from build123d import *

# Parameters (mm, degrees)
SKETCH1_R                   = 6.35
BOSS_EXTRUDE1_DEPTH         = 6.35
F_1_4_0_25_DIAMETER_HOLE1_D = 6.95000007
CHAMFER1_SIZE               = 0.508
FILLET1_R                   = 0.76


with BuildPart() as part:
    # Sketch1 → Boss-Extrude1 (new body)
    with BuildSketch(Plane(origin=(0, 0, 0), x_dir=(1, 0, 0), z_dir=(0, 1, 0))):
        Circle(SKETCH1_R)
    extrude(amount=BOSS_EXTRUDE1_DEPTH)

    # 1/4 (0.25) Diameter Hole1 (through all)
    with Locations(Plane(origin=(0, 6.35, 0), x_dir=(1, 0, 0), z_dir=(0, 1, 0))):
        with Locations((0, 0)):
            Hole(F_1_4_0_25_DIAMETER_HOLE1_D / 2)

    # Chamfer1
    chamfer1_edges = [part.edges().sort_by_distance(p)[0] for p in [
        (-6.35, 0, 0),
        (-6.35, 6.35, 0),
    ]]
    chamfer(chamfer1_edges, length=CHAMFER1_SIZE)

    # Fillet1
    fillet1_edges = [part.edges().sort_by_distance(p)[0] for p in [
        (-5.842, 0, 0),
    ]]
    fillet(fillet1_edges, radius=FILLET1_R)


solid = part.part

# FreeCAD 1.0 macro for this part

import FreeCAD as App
import Part
import Sketcher
Q = App.Units.Quantity


def edges_at(feature, points):
    """Names of the edges that pass closest to the given points."""
    edges = feature.Shape.Edges
    near = lambda p: min(range(len(edges)), key=lambda i: edges[i].distToShape(Part.Vertex(*p))[0])
    return sorted({f"Edge{near(p) + 1}" for p in points})

doc = App.newDocument("Part")
body = doc.addObject("PartDesign::Body", "Body")

# Sketch on XZ plane
sketch1 = body.newObject("Sketcher::SketchObject", "Sketch")
sketch1.AttachmentSupport = (doc.getObject("XZ_Plane"), [""])
sketch1.MapMode = "FlatFace"
sketch1.addGeometry(Part.Circle(App.Vector(0, 0, 0), App.Vector(0, 0, 1), 6.35), False)
sketch1.addConstraint(Sketcher.Constraint("Coincident", 0, 3, -1, 1))
sketch1.addConstraint(Sketcher.Constraint("Diameter", 0, Q("0.5 in")))
pad1 = body.newObject("PartDesign::Pad", "Pad")
pad1.Profile = sketch1
pad1.Length = Q("0.25 in")
pad1.Reversed = True

# Sketch on XZ plane
sketch2 = body.newObject("Sketcher::SketchObject", "Sketch001")
sketch2.AttachmentSupport = (doc.getObject("XZ_Plane"), [""])
sketch2.MapMode = "FlatFace"
sketch2.AttachmentOffset = App.Placement(App.Vector(0, 0, -0.25 * 25.4), App.Rotation())
sketch2.addGeometry(Part.Circle(App.Vector(0, 0, 0), App.Vector(0, 0, 1), 3.475), False)
sketch2.addConstraint(Sketcher.Constraint("Coincident", 0, 3, -1, 1))
sketch2.addConstraint(Sketcher.Constraint("Diameter", 0, 6.95))
doc.recompute()
hole = body.newObject("PartDesign::Hole", "Hole")
hole.Profile = sketch2
hole.ThreadType = "None"
hole.Diameter = 6.95
hole.DepthType = "ThroughAll"
hole.Reversed = True
doc.recompute()

chamfer = body.newObject("PartDesign::Chamfer", "Chamfer")
chamfer.Base = (hole, edges_at(hole, [(-6.35, 0, 0), (-6.35, 6.35, 0)]))
chamfer.Size = Q("0.02 in")
doc.recompute()

fillet = body.newObject("PartDesign::Fillet", "Fillet")
fillet.Base = (chamfer, edges_at(chamfer, [(-5.842, 0, 0)]))
fillet.Radius = 0.76

doc.recompute()
